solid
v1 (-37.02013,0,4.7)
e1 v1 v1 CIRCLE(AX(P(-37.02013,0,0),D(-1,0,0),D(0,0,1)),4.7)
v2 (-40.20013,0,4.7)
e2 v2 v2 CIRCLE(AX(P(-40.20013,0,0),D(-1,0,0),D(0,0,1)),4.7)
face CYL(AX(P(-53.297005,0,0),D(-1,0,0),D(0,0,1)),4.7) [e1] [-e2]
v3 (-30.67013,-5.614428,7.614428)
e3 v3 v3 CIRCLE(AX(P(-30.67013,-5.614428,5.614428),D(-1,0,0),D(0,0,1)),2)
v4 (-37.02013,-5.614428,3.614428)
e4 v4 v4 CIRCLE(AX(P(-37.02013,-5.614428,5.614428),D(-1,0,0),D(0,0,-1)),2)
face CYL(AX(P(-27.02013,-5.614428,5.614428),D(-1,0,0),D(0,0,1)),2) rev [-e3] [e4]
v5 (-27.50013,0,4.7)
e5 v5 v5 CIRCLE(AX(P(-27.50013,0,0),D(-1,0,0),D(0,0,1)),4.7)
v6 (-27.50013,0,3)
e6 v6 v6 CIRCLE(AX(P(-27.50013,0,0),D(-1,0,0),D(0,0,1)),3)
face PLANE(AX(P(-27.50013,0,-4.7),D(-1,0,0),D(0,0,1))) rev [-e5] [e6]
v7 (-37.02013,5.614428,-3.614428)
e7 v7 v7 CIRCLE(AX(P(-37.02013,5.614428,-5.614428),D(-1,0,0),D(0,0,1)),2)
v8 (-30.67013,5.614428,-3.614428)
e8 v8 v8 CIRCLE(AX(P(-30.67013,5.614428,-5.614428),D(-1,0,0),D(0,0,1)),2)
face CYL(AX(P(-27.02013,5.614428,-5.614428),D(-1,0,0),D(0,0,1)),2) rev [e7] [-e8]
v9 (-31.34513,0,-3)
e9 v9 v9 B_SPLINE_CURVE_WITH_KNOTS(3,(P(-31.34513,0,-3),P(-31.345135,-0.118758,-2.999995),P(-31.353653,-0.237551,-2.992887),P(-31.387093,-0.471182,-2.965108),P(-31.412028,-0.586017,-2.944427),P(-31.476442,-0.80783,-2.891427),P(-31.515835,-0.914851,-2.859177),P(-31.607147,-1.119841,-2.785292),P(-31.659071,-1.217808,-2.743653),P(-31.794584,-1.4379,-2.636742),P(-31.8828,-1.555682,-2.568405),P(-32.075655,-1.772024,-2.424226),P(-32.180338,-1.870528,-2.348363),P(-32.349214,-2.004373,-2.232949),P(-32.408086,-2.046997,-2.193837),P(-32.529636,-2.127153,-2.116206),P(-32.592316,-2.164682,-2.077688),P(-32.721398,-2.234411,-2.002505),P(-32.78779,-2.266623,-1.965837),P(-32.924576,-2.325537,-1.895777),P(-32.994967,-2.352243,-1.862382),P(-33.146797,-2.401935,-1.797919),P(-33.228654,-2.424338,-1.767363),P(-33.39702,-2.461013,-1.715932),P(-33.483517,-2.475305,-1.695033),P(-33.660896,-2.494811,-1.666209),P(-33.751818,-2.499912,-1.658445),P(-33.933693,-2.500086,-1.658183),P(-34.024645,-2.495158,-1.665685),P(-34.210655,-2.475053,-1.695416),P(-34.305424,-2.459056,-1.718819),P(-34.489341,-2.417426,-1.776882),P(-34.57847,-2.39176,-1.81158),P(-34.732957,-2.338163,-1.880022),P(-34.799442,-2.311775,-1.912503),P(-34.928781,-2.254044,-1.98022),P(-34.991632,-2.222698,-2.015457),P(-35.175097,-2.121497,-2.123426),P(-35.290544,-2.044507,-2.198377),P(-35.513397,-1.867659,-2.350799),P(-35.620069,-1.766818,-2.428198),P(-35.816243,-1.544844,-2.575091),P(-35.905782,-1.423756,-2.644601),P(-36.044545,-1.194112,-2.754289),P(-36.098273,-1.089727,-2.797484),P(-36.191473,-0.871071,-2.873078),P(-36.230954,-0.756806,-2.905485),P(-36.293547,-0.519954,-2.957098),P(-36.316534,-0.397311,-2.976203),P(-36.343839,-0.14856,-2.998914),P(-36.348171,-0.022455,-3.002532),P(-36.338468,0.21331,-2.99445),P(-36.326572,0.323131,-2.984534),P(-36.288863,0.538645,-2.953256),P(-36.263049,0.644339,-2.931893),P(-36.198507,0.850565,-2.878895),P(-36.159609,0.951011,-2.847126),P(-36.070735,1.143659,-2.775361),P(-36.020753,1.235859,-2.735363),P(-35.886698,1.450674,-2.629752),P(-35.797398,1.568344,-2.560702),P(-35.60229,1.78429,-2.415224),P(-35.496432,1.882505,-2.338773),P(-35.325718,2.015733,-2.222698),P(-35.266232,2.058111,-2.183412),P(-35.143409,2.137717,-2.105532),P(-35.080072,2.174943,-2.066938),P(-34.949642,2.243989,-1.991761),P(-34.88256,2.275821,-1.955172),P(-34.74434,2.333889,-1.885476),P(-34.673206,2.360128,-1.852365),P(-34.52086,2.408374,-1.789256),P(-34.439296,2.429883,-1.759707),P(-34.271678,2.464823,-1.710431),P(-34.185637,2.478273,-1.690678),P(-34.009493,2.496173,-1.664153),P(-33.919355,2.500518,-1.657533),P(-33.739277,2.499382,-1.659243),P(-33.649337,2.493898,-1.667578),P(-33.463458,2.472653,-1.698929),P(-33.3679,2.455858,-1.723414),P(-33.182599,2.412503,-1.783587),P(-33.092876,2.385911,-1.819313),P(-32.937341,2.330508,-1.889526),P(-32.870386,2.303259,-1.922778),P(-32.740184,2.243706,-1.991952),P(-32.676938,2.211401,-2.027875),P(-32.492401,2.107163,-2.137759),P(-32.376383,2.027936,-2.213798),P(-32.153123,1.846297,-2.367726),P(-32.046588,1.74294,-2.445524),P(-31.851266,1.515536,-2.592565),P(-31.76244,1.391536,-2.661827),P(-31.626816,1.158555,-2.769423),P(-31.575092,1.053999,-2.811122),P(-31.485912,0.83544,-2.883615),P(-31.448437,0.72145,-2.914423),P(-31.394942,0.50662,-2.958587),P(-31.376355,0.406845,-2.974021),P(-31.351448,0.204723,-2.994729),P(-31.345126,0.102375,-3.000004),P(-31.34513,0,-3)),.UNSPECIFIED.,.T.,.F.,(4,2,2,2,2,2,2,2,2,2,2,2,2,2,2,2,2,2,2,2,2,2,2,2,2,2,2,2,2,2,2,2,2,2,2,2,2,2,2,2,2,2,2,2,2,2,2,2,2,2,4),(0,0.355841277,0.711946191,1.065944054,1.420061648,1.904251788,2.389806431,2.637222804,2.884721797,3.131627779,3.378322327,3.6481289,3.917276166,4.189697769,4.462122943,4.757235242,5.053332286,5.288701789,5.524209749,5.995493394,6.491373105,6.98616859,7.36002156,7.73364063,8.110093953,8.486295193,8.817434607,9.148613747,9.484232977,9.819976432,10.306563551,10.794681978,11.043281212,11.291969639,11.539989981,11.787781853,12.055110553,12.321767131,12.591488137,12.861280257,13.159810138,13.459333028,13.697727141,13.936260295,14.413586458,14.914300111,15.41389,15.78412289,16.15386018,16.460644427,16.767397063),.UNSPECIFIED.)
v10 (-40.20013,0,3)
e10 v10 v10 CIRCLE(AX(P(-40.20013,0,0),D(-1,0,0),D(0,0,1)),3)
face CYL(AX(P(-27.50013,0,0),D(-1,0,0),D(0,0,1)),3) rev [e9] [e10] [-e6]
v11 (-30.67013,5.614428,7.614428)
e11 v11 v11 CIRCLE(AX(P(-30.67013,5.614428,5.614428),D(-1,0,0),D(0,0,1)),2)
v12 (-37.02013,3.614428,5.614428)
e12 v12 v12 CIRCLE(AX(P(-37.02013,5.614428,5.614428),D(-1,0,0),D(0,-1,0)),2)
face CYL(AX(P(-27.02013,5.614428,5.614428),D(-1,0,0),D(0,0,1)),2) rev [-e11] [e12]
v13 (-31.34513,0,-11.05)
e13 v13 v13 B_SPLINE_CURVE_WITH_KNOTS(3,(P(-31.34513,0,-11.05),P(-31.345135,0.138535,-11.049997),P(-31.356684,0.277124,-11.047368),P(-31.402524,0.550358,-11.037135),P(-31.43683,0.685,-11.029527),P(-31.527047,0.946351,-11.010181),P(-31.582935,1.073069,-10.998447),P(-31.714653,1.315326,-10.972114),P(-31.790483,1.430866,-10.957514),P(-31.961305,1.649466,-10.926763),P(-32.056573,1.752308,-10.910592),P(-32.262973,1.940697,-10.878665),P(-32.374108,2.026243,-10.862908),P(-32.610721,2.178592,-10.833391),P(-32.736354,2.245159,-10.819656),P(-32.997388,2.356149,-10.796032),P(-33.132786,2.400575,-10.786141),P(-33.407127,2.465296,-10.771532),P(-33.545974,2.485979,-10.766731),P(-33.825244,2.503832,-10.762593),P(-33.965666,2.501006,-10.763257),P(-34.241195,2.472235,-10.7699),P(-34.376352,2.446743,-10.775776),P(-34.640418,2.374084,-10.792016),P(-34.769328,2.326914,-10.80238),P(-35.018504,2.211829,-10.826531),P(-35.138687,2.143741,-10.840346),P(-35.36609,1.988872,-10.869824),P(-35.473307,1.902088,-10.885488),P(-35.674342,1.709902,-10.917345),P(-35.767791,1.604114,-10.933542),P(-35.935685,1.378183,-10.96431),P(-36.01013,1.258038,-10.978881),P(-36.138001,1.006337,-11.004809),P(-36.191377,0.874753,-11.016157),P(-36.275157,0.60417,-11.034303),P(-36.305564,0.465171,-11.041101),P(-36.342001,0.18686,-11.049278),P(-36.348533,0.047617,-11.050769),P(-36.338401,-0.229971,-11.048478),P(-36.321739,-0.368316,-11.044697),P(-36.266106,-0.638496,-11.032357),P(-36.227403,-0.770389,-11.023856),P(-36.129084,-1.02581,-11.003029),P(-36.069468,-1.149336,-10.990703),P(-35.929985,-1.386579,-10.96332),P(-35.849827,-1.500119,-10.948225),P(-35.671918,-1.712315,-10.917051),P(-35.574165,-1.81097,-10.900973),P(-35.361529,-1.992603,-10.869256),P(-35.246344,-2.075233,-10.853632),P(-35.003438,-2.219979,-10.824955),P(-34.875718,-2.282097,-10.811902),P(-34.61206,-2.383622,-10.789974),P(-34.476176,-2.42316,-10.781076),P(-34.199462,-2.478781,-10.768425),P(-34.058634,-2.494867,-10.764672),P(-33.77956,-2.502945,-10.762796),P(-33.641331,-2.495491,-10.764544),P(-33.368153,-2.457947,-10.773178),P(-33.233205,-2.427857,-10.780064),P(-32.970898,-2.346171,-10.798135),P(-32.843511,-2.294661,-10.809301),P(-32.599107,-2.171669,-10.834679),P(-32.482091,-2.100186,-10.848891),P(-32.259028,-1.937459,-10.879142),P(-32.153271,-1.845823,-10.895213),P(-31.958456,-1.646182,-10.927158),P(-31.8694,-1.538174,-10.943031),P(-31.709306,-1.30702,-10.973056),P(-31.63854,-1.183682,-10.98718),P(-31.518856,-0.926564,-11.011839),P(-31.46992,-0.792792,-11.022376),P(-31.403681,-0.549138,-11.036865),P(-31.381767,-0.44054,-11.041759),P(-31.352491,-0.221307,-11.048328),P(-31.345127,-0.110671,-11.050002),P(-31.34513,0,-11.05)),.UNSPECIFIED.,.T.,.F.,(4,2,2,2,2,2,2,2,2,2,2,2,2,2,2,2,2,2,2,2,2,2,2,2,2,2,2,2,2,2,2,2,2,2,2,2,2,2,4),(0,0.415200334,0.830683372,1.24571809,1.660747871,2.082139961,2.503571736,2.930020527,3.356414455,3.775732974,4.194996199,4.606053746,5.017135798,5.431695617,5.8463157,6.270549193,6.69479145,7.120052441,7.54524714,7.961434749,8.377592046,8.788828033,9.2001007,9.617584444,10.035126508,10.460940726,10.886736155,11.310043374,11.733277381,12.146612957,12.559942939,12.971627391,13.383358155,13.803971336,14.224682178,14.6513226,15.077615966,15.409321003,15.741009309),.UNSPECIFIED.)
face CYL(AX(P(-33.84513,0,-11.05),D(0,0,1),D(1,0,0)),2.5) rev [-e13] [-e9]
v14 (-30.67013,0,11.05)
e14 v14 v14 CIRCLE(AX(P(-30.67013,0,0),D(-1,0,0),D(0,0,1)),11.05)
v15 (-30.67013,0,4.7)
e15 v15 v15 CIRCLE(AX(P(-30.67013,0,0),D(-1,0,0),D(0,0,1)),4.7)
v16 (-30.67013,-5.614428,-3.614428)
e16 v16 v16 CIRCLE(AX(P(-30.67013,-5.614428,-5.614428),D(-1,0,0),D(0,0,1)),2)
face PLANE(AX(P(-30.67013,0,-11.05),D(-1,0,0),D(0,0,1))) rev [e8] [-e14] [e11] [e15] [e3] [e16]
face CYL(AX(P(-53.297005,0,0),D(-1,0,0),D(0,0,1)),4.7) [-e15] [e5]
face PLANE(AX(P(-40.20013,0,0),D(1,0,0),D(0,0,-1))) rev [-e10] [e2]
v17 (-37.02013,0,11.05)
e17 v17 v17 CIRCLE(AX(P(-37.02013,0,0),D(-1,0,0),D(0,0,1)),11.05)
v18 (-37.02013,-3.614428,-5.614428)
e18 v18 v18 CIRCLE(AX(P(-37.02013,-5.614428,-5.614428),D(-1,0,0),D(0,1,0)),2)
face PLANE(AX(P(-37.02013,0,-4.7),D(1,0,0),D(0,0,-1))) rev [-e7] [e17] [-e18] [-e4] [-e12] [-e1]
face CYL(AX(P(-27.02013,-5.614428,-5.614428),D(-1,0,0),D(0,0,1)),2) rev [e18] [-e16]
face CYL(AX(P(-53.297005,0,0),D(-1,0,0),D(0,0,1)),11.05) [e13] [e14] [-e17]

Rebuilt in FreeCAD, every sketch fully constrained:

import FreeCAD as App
import Part
import Sketcher

doc = App.newDocument("Part")
body = doc.addObject("PartDesign::Body", "Body")

# Sketch on XZ plane
sketch1 = doc.addObject("Sketcher::SketchObject", "Sketch")
body.addObject(sketch1)
sketch1.AttachmentSupport = (doc.XZ_Plane, [""])
sketch1.MapMode = "FlatFace"
sketch1.addGeometry(Part.LineSegment(App.Vector(-40.20013, -4.7, 0), App.Vector(-40.20013, 0, 0)), False)
sketch1.addGeometry(Part.LineSegment(App.Vector(-40.20013, 0, 0), App.Vector(-27.50013, 0, 0)), False)
sketch1.addGeometry(Part.LineSegment(App.Vector(-27.50013, 0, 0), App.Vector(-27.50013, -4.7, 0)), False)
sketch1.addGeometry(Part.LineSegment(App.Vector(-27.50013, -4.7, 0), App.Vector(-30.67013, -4.7, 0)), False)
sketch1.addGeometry(Part.LineSegment(App.Vector(-30.67013, -4.7, 0), App.Vector(-30.67013, -11.05, 0)), False)
sketch1.addGeometry(Part.LineSegment(App.Vector(-30.67013, -11.05, 0), App.Vector(-37.02013, -11.05, 0)), False)
sketch1.addGeometry(Part.LineSegment(App.Vector(-37.02013, -11.05, 0), App.Vector(-37.02013, -4.7, 0)), False)
sketch1.addGeometry(Part.LineSegment(App.Vector(-37.02013, -4.7, 0), App.Vector(-40.20013, -4.7, 0)), False)
sketch1.addConstraint(Sketcher.Constraint("Coincident", 0, 2, 1, 1))
sketch1.addConstraint(Sketcher.Constraint("Coincident", 1, 2, 2, 1))
sketch1.addConstraint(Sketcher.Constraint("Coincident", 2, 2, 3, 1))
sketch1.addConstraint(Sketcher.Constraint("Coincident", 3, 2, 4, 1))
sketch1.addConstraint(Sketcher.Constraint("Coincident", 4, 2, 5, 1))
sketch1.addConstraint(Sketcher.Constraint("Coincident", 5, 2, 6, 1))
sketch1.addConstraint(Sketcher.Constraint("Coincident", 6, 2, 7, 1))
sketch1.addConstraint(Sketcher.Constraint("Coincident", 7, 2, 0, 1))
sketch1.addConstraint(Sketcher.Constraint("Vertical", 0))
sketch1.addConstraint(Sketcher.Constraint("Horizontal", 1))
sketch1.addConstraint(Sketcher.Constraint("Vertical", 2))
sketch1.addConstraint(Sketcher.Constraint("Horizontal", 3))
sketch1.addConstraint(Sketcher.Constraint("Vertical", 4))
sketch1.addConstraint(Sketcher.Constraint("Horizontal", 5))
sketch1.addConstraint(Sketcher.Constraint("Vertical", 6))
sketch1.addConstraint(Sketcher.Constraint("Horizontal", 7))
sketch1.addConstraint(Sketcher.Constraint("PointOnObject", 0, 2, -1))
sketch1.addConstraint(Sketcher.Constraint("Horizontal", 3, 2, 6, 2))
sketch1.addConstraint(Sketcher.Constraint("Equal", 5, 4))
sketch1.addConstraint(Sketcher.Constraint("DistanceX", 1, 1, 1, 2, 12.7))
sketch1.addConstraint(Sketcher.Constraint("DistanceY", 0, 1, 0, 2, 4.7))
sketch1.addConstraint(Sketcher.Constraint("DistanceX", 3, 2, 3, 1, 3.17))
sketch1.addConstraint(Sketcher.Constraint("DistanceX", 5, 2, 5, 1, 6.35))
sketch1.addConstraint(Sketcher.Constraint("DistanceX", 0, 2, -1, 1, 40.20013))
revolution = doc.addObject("PartDesign::Revolution", "Revolution")
body.addObject(revolution)
revolution.Profile = sketch1
revolution.ReferenceAxis = (sketch1, ["H_Axis"])
revolution.Angle = 360

# Sketch on YZ plane
sketch2 = doc.addObject("Sketcher::SketchObject", "Sketch001")
body.addObject(sketch2)
sketch2.AttachmentSupport = (doc.YZ_Plane, [""])
sketch2.MapMode = "FlatFace"
sketch2.AttachmentOffset = App.Placement(App.Vector(0, 0, -40.20013), App.Rotation())
sketch2.addGeometry(Part.Circle(App.Vector(0, 0, 0), App.Vector(0, 0, 1), 3), False)
sketch2.addConstraint(Sketcher.Constraint("Coincident", 0, 3, -1, 1))
sketch2.addConstraint(Sketcher.Constraint("Diameter", 0, 6.0))
pocket1 = doc.addObject("PartDesign::Pocket", "Pocket")
body.addObject(pocket1)
pocket1.Profile = sketch2
pocket1.Type = "ThroughAll"
pocket1.Reversed = True

# Sketch on YZ plane
sketch3 = doc.addObject("Sketcher::SketchObject", "Sketch002")
body.addObject(sketch3)
sketch3.AttachmentSupport = (doc.YZ_Plane, [""])
sketch3.MapMode = "FlatFace"
sketch3.AttachmentOffset = App.Placement(App.Vector(0, 0, -37.02013), App.Rotation())
sketch3.addGeometry(Part.Circle(App.Vector(5.614428, -5.614428, 0), App.Vector(0, 0, 1), 2), False)
sketch3.addConstraint(Sketcher.Constraint("Diameter", 0, 4.0))
sketch3.addConstraint(Sketcher.Constraint("DistanceX", -1, 1, 0, 3, 5.614428))
sketch3.addConstraint(Sketcher.Constraint("DistanceY", 0, 3, -1, 1, 5.614428))
pocket2 = doc.addObject("PartDesign::Pocket", "Pocket001")
body.addObject(pocket2)
pocket2.Profile = sketch3
pocket2.Length = 10
pocket2.Reversed = True
doc.recompute()

polarpattern = doc.addObject("PartDesign::PolarPattern", "PolarPattern")
body.addObject(polarpattern)
polarpattern.Originals = [pocket2]
polarpattern.Axis = (doc.X_Axis, [""])
polarpattern.Angle = 360
polarpattern.Occurrences = 4
body.Tip = polarpattern

# Sketch on XY plane
sketch4 = doc.addObject("Sketcher::SketchObject", "Sketch003")
body.addObject(sketch4)
sketch4.AttachmentSupport = (doc.XY_Plane, [""])
sketch4.MapMode = "FlatFace"
sketch4.addGeometry(Part.Circle(App.Vector(-33.84513, 0, 0), App.Vector(0, 0, 1), 2.5), False)
sketch4.addConstraint(Sketcher.Constraint("PointOnObject", 0, 3, -1))
sketch4.addConstraint(Sketcher.Constraint("Diameter", 0, 5.0))
sketch4.addConstraint(Sketcher.Constraint("DistanceX", 0, 3, -1, 1, 33.84513))
pocket3 = doc.addObject("PartDesign::Pocket", "Pocket002")
body.addObject(pocket3)
pocket3.Profile = sketch4
pocket3.Type = "ThroughAll"

doc.recompute()
